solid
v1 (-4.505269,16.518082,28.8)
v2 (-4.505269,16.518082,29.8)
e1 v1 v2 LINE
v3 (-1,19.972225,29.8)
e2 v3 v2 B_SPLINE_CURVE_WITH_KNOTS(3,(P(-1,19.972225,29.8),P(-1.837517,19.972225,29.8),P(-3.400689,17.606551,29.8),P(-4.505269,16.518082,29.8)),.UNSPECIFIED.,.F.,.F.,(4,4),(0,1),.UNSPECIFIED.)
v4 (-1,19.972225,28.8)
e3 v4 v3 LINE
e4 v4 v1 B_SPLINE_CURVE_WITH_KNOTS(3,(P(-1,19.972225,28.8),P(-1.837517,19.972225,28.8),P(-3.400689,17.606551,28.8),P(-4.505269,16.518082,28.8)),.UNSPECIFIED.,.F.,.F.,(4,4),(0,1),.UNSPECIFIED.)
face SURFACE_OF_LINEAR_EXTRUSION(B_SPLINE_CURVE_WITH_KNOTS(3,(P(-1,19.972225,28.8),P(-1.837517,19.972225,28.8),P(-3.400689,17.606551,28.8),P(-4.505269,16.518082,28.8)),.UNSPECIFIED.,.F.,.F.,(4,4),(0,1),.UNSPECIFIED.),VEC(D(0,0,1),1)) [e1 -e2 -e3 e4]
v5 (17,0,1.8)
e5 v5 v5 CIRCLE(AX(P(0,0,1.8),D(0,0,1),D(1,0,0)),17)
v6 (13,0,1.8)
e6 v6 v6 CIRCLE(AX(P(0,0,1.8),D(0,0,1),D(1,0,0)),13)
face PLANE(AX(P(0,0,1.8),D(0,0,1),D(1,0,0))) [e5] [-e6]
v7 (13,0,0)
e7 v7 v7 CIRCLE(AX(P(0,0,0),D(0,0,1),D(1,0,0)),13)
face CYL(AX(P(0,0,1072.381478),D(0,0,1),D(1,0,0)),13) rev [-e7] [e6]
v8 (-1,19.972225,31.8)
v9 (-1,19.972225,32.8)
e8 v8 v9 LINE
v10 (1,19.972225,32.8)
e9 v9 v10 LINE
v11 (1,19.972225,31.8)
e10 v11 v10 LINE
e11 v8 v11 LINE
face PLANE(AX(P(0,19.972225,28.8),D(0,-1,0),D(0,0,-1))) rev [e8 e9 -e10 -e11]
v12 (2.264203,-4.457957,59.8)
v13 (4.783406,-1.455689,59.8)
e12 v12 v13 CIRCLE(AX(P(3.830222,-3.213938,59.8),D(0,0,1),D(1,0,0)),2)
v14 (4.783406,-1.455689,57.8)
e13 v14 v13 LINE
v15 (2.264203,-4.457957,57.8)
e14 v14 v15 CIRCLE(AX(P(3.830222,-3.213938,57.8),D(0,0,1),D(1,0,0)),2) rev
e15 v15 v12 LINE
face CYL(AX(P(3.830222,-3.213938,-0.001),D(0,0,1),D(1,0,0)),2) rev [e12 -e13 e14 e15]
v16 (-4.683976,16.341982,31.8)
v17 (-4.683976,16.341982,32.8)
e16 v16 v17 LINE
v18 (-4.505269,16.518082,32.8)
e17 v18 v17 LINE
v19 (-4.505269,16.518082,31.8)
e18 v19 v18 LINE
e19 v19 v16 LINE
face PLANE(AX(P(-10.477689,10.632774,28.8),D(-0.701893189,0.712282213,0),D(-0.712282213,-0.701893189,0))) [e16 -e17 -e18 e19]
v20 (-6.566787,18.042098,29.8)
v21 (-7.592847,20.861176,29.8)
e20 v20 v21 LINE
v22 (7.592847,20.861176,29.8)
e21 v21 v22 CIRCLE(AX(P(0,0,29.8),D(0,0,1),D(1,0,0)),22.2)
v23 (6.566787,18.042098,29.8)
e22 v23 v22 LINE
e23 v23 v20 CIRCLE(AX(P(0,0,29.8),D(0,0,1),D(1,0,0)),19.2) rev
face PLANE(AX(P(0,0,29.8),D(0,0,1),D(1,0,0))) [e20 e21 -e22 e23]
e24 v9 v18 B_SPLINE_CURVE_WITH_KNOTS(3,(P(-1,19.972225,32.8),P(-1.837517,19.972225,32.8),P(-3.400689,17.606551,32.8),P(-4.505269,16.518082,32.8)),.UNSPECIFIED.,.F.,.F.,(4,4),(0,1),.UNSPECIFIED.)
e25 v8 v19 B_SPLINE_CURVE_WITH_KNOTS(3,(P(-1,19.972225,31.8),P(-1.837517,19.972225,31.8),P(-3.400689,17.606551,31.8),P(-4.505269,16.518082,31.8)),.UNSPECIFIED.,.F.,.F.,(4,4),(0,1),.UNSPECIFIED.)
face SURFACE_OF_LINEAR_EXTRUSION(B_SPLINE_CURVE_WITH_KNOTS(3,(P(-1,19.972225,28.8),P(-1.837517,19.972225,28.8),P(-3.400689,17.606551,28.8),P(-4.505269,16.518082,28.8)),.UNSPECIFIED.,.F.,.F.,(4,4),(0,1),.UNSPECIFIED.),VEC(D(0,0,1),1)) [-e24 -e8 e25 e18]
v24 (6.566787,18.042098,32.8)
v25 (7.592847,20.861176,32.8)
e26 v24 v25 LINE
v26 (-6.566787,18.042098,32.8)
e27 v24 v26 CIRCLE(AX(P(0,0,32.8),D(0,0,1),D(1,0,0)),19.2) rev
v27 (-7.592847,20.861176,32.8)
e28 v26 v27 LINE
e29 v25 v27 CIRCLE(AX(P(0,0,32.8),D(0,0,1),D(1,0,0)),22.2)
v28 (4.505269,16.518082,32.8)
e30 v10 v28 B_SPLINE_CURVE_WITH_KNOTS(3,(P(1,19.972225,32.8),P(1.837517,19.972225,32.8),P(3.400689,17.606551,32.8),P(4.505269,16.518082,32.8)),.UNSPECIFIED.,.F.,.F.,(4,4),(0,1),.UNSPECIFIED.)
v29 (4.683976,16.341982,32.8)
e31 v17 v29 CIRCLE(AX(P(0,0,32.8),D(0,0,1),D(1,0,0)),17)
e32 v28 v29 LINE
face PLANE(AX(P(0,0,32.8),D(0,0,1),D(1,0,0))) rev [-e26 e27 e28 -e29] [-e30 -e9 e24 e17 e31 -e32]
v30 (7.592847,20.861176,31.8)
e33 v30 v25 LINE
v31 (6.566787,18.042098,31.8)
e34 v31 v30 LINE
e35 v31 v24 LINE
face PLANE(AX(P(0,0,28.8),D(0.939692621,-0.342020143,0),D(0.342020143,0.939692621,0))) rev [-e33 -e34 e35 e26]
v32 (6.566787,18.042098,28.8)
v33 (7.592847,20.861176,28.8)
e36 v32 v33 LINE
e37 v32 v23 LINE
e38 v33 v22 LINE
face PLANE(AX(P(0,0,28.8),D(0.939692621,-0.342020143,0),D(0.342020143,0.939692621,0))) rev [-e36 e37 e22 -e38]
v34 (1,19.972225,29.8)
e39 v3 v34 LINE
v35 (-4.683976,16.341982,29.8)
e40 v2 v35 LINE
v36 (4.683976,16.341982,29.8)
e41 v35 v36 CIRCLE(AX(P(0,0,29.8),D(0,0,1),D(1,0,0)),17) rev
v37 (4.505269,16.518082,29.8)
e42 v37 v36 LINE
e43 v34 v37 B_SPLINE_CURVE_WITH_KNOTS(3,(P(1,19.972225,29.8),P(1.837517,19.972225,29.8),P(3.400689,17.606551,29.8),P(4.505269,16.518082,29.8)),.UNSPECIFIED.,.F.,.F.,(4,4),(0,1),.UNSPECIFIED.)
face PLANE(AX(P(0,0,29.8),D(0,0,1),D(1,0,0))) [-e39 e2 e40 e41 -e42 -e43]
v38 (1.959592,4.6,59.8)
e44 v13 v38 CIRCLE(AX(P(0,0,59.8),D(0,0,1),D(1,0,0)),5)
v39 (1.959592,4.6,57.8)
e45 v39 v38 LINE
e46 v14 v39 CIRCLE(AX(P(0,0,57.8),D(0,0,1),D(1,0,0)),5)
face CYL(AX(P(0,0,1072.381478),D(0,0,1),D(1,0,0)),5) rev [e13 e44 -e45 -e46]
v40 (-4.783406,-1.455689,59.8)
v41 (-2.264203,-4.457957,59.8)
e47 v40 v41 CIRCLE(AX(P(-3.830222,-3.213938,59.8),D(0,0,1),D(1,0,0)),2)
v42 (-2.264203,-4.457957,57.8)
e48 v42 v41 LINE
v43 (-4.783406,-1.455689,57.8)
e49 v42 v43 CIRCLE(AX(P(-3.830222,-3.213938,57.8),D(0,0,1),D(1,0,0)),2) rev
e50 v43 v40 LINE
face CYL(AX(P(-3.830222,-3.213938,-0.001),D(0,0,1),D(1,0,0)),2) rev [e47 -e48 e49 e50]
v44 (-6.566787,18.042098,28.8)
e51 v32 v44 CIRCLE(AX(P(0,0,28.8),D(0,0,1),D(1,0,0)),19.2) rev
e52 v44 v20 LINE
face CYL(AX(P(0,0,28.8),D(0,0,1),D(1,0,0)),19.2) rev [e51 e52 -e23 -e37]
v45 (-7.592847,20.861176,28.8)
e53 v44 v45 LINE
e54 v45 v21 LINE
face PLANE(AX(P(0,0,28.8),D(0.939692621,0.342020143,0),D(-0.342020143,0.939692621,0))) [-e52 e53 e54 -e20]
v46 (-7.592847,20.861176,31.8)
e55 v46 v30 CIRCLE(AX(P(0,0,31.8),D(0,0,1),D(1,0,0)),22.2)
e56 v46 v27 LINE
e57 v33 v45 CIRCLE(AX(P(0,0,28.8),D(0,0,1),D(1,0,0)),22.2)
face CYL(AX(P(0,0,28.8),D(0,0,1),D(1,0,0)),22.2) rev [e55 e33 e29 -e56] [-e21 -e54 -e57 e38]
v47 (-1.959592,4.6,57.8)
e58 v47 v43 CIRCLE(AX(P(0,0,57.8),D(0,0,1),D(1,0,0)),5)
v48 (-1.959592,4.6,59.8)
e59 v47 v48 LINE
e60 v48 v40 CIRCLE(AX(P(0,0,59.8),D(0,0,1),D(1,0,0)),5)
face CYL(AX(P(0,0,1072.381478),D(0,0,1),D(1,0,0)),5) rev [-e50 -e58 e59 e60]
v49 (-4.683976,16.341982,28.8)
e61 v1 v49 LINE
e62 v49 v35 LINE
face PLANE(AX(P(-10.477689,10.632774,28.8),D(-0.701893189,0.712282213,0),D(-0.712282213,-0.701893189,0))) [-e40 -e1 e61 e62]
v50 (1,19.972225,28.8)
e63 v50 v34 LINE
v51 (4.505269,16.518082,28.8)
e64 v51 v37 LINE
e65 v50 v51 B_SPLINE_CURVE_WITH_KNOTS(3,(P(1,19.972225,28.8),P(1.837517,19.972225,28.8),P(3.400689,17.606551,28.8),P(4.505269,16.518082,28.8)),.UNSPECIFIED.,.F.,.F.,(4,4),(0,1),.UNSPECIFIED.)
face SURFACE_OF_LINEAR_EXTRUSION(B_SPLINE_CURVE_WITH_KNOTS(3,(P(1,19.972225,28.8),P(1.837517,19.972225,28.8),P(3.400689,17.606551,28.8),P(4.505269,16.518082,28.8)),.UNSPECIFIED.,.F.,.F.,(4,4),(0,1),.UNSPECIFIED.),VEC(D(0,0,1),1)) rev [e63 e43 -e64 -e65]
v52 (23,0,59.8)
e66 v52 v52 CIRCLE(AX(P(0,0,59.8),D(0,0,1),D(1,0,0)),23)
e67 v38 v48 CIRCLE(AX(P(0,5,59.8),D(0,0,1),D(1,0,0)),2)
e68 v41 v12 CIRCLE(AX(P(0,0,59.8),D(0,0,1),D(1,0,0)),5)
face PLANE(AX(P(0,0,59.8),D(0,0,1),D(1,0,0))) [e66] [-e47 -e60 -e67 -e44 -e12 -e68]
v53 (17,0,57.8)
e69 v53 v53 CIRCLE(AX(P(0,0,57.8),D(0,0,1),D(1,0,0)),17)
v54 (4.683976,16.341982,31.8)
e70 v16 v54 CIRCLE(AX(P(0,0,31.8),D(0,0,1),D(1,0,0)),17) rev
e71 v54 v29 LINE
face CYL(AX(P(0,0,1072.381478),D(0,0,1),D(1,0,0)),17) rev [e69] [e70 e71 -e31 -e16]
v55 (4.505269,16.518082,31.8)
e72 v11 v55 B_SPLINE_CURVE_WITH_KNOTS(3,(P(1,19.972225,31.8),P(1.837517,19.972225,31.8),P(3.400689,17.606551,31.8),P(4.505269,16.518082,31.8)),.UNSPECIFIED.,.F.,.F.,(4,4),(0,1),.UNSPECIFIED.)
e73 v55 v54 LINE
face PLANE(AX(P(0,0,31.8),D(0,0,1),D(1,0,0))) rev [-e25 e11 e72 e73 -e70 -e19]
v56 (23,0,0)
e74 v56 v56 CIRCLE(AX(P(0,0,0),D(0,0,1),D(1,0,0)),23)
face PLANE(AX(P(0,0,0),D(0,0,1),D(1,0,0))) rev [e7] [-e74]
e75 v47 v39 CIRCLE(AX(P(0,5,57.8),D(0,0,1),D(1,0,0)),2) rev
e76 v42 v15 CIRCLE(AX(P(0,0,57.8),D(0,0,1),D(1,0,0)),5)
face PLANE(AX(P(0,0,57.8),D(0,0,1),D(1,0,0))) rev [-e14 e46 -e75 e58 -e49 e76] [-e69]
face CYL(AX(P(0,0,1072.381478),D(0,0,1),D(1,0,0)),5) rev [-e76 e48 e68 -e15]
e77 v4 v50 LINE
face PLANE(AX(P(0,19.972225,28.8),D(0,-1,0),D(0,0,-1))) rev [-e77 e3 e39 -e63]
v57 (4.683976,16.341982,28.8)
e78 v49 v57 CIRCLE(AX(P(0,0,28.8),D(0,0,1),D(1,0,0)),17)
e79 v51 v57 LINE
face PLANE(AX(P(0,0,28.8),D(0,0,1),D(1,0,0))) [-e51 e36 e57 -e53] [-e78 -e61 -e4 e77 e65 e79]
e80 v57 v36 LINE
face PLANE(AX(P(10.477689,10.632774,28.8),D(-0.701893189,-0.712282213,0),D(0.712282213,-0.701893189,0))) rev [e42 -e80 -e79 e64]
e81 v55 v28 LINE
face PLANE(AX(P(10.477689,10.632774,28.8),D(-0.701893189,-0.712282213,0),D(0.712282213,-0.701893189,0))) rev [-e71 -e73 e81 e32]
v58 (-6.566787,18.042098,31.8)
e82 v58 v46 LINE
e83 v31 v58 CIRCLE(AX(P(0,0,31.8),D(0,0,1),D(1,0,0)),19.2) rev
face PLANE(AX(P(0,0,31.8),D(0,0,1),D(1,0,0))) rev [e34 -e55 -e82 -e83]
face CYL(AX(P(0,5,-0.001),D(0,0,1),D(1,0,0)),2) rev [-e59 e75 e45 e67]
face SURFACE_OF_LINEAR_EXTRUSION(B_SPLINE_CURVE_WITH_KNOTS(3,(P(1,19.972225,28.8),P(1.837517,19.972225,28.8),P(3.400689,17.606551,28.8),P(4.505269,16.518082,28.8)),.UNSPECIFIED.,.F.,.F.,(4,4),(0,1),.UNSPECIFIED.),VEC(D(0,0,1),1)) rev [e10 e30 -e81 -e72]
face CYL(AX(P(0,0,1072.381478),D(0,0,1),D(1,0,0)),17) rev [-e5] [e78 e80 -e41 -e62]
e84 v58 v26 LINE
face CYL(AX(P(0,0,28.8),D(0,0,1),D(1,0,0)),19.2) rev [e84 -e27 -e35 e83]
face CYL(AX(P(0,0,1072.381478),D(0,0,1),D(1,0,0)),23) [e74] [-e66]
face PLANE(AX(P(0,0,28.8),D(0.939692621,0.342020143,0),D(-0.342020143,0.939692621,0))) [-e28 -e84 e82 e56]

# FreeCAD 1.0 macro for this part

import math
import FreeCAD as App
import Part
import Sketcher
from FreeCAD import Vector
Q = App.Units.Quantity

doc = App.newDocument("Part")
body = doc.addObject("PartDesign::Body", "Body")

# Sketch on YZ plane
sketch1 = doc.addObject("Sketcher::SketchObject", "Sketch")
body.addObject(sketch1)
sketch1.AttachmentSupport = (doc.YZ_Plane, [""])
sketch1.MapMode = "FlatFace"
sketch1.addGeometry(Part.LineSegment(Vector(5, 59.8, 0), Vector(5, 57.8, 0)), False)
sketch1.addGeometry(Part.LineSegment(Vector(5, 57.8, 0), Vector(17, 57.8, 0)), False)
sketch1.addGeometry(Part.LineSegment(Vector(17, 57.8, 0), Vector(17, 1.8, 0)), False)
sketch1.addGeometry(Part.LineSegment(Vector(17, 1.8, 0), Vector(13, 1.8, 0)), False)
sketch1.addGeometry(Part.LineSegment(Vector(13, 1.8, 0), Vector(13, 0, 0)), False)
sketch1.addGeometry(Part.LineSegment(Vector(13, 0, 0), Vector(23, 0, 0)), False)
sketch1.addGeometry(Part.LineSegment(Vector(23, 0, 0), Vector(23, 59.8, 0)), False)
sketch1.addGeometry(Part.LineSegment(Vector(23, 59.8, 0), Vector(5, 59.8, 0)), False)
sketch1.addConstraint(Sketcher.Constraint("Coincident", 0, 2, 1, 1))
sketch1.addConstraint(Sketcher.Constraint("Coincident", 1, 2, 2, 1))
sketch1.addConstraint(Sketcher.Constraint("Coincident", 2, 2, 3, 1))
sketch1.addConstraint(Sketcher.Constraint("Coincident", 3, 2, 4, 1))
sketch1.addConstraint(Sketcher.Constraint("Coincident", 4, 2, 5, 1))
sketch1.addConstraint(Sketcher.Constraint("Coincident", 5, 2, 6, 1))
sketch1.addConstraint(Sketcher.Constraint("Coincident", 6, 2, 7, 1))
sketch1.addConstraint(Sketcher.Constraint("Coincident", 7, 2, 0, 1))
sketch1.addConstraint(Sketcher.Constraint("Vertical", 0))
sketch1.addConstraint(Sketcher.Constraint("Horizontal", 1))
sketch1.addConstraint(Sketcher.Constraint("Vertical", 2))
sketch1.addConstraint(Sketcher.Constraint("Horizontal", 3))
sketch1.addConstraint(Sketcher.Constraint("Vertical", 4))
sketch1.addConstraint(Sketcher.Constraint("Horizontal", 5))
sketch1.addConstraint(Sketcher.Constraint("Vertical", 6))
sketch1.addConstraint(Sketcher.Constraint("Horizontal", 7))
sketch1.addConstraint(Sketcher.Constraint("PointOnObject", 4, 2, -1))
sketch1.addConstraint(Sketcher.Constraint("DistanceX", 1, 1, 1, 2, Q("12 mm")))
sketch1.addConstraint(Sketcher.Constraint("DistanceX", 3, 2, 3, 1, Q("4 mm")))
sketch1.addConstraint(Sketcher.Constraint("DistanceX", 5, 1, 5, 2, Q("10 mm")))
sketch1.addConstraint(Sketcher.Constraint("DistanceY", 0, 2, 0, 1, Q("2 mm")))
sketch1.addConstraint(Sketcher.Constraint("DistanceY", 2, 2, 2, 1, Q("56 mm")))
sketch1.addConstraint(Sketcher.Constraint("DistanceY", 4, 2, 4, 1, Q("1.8 mm")))
sketch1.addConstraint(Sketcher.Constraint("DistanceX", -1, 1, 0, 2, Q("5 mm")))
revolution = doc.addObject("PartDesign::Revolution", "Revolution")
body.addObject(revolution)
revolution.Profile = sketch1
revolution.ReferenceAxis = (sketch1, ["V_Axis"])
revolution.Angle = 360

# Sketch on XY plane
sketch2 = doc.addObject("Sketcher::SketchObject", "Sketch001")
body.addObject(sketch2)
sketch2.AttachmentSupport = (doc.XY_Plane, [""])
sketch2.MapMode = "FlatFace"
sketch2.AttachmentOffset = App.Placement(Vector(0, 0, 30.8), App.Rotation())
sketch2.addGeometry(Part.ArcOfCircle(Part.Circle(Vector(0, 0, 0), Vector(0, 0, 1), 19.2), math.radians(110), math.radians(430)), False)
sketch2.addGeometry(Part.LineSegment(Vector(6.566787, 18.042098, 0), Vector(7.592847, 20.861176, 0)), False)
sketch2.addGeometry(Part.ArcOfCircle(Part.Circle(Vector(0, 0, 0), Vector(0, 0, 1), 22.2), math.radians(70), math.radians(110)), False)
sketch2.addGeometry(Part.LineSegment(Vector(-7.592847, 20.861176, 0), Vector(-6.566787, 18.042098, 0)), False)
sketch2.addGeometry(Part.BSplineCurve([Vector(-1, 19.972225, 0), Vector(-1.837517, 19.972225, 0), Vector(-3.400689, 17.606551, 0), Vector(-4.505269, 16.518082, 0)], [4, 4], [0, 1], False, 3, [1, 1, 1, 1], False), False)
sketch2.addGeometry(Part.LineSegment(Vector(-1, 19.972225, 0), Vector(1, 19.972225, 0)), False)
sketch2.addGeometry(Part.BSplineCurve([Vector(1, 19.972225, 0), Vector(1.837517, 19.972225, 0), Vector(3.400689, 17.606551, 0), Vector(4.505269, 16.518082, 0)], [4, 4], [0, 1], False, 3, [1, 1, 1, 1], False), False)
sketch2.addGeometry(Part.LineSegment(Vector(4.505269, 16.518082, 0), Vector(4.683976, 16.341982, 0)), False)
sketch2.addGeometry(Part.ArcOfCircle(Part.Circle(Vector(0, 0, 0), Vector(0, 0, 1), 17), math.radians(0), math.radians(74.006518)), False)
sketch2.addGeometry(Part.ArcOfCircle(Part.Circle(Vector(0, 0, 0), Vector(0, 0, 1), 17), math.radians(105.993482), math.radians(360)), False)
sketch2.addGeometry(Part.LineSegment(Vector(-4.683976, 16.341982, 0), Vector(-4.505269, 16.518082, 0)), False)
sketch2.addConstraint(Sketcher.Constraint("Block", 4))
sketch2.addConstraint(Sketcher.Constraint("Block", 6))
sketch2.addConstraint(Sketcher.Constraint("Coincident", 0, 2, 1, 1))
sketch2.addConstraint(Sketcher.Constraint("Coincident", 1, 2, 2, 1))
sketch2.addConstraint(Sketcher.Constraint("Coincident", 2, 2, 3, 1))
sketch2.addConstraint(Sketcher.Constraint("Coincident", 3, 2, 0, 1))
sketch2.addConstraint(Sketcher.Constraint("Coincident", 4, 1, 5, 1))
sketch2.addConstraint(Sketcher.Constraint("Coincident", 5, 2, 6, 1))
sketch2.addConstraint(Sketcher.Constraint("Coincident", 6, 2, 7, 1))
sketch2.addConstraint(Sketcher.Constraint("Coincident", 7, 2, 8, 2))
sketch2.addConstraint(Sketcher.Constraint("Tangent", 8, 1, 9, 2))
sketch2.addConstraint(Sketcher.Constraint("Coincident", 9, 1, 10, 1))
sketch2.addConstraint(Sketcher.Constraint("Coincident", 10, 2, 4, 2))
sketch2.addConstraint(Sketcher.Constraint("Coincident", 0, 3, -1, 1))
sketch2.addConstraint(Sketcher.Constraint("Coincident", 2, 3, -1, 1))
sketch2.addConstraint(Sketcher.Constraint("Coincident", 8, 3, -1, 1))
sketch2.addConstraint(Sketcher.Constraint("Equal", 8, 9))
sketch2.addConstraint(Sketcher.Constraint("PointOnObject", 8, 1, -1))
sketch2.addConstraint(Sketcher.Constraint("Horizontal", 1, 2, 2, 2))
sketch2.addConstraint(Sketcher.Constraint("Horizontal", 0, 2, 3, 2))
sketch2.addConstraint(Sketcher.Constraint("Horizontal", 7, 2, 9, 1))
sketch2.addConstraint(Sketcher.Constraint("Radius", 8, Q("17 mm")))
sketch2.addConstraint(Sketcher.Constraint("Radius", 0, Q("19.2 mm")))
sketch2.addConstraint(Sketcher.Constraint("Radius", 2, Q("22.2 mm")))
sketch2.addConstraint(Sketcher.Constraint("Angle", 1, Q("70 deg")))
sketch2.addConstraint(Sketcher.Constraint("DistanceY", -1, 1, 0, 2, Q("18.042098 mm")))
sketch2.addConstraint(Sketcher.Constraint("DistanceY", 9, 1, 10, 2, Q("0.176101 mm")))
pocket1 = doc.addObject("PartDesign::Pocket", "Pocket")
body.addObject(pocket1)
pocket1.Profile = sketch2
pocket1.Length = 4
pocket1.Midplane = True

# Sketch on XY plane
sketch3 = doc.addObject("Sketcher::SketchObject", "Sketch002")
body.addObject(sketch3)
sketch3.AttachmentSupport = (doc.XY_Plane, [""])
sketch3.MapMode = "FlatFace"
sketch3.AttachmentOffset = App.Placement(Vector(0, 0, 30.8), App.Rotation())
sketch3.addGeometry(Part.LineSegment(Vector(4.683976, 16.341982, 0), Vector(4.505269, 16.518082, 0)), False)
sketch3.addGeometry(Part.BSplineCurve([Vector(1, 19.972225, 0), Vector(1.837517, 19.972225, 0), Vector(3.400689, 17.606551, 0), Vector(4.505269, 16.518082, 0)], [4, 4], [0, 1], False, 3, [1, 1, 1, 1], False), False)
sketch3.addGeometry(Part.LineSegment(Vector(1, 19.972225, 0), Vector(-1, 19.972225, 0)), False)
sketch3.addGeometry(Part.BSplineCurve([Vector(-1, 19.972225, 0), Vector(-1.837517, 19.972225, 0), Vector(-3.400689, 17.606551, 0), Vector(-4.505269, 16.518082, 0)], [4, 4], [0, 1], False, 3, [1, 1, 1, 1], False), False)
sketch3.addGeometry(Part.LineSegment(Vector(-4.505269, 16.518082, 0), Vector(-4.683976, 16.341982, 0)), False)
sketch3.addGeometry(Part.ArcOfCircle(Part.Circle(Vector(0, 0, 0), Vector(0, 0, 1), 17), math.radians(105.993482), math.radians(434.006518)), False)
sketch3.addGeometry(Part.LineSegment(Vector(7.592847, 20.861176, 0), Vector(6.566787, 18.042098, 0)), False)
sketch3.addGeometry(Part.ArcOfCircle(Part.Circle(Vector(0, 0, 0), Vector(0, 0, 1), 19.2), math.radians(110), math.radians(430)), False)
sketch3.addGeometry(Part.LineSegment(Vector(-6.566787, 18.042098, 0), Vector(-7.592847, 20.861176, 0)), False)
sketch3.addGeometry(Part.ArcOfCircle(Part.Circle(Vector(0, 0, 0), Vector(0, 0, 1), 22.2), math.radians(110), math.radians(360)), False)
sketch3.addGeometry(Part.ArcOfCircle(Part.Circle(Vector(0, 0, 0), Vector(0, 0, 1), 22.2), math.radians(0), math.radians(70)), False)
sketch3.addConstraint(Sketcher.Constraint("Block", 1))
sketch3.addConstraint(Sketcher.Constraint("Block", 3))
sketch3.addConstraint(Sketcher.Constraint("Coincident", 0, 2, 1, 2))
sketch3.addConstraint(Sketcher.Constraint("Coincident", 1, 1, 2, 1))
sketch3.addConstraint(Sketcher.Constraint("Coincident", 2, 2, 3, 1))
sketch3.addConstraint(Sketcher.Constraint("Coincident", 3, 2, 4, 1))
sketch3.addConstraint(Sketcher.Constraint("Coincident", 4, 2, 5, 1))
sketch3.addConstraint(Sketcher.Constraint("Coincident", 5, 2, 0, 1))
sketch3.addConstraint(Sketcher.Constraint("Coincident", 6, 2, 7, 2))
sketch3.addConstraint(Sketcher.Constraint("Coincident", 7, 1, 8, 1))
sketch3.addConstraint(Sketcher.Constraint("Coincident", 8, 2, 9, 1))
sketch3.addConstraint(Sketcher.Constraint("Tangent", 9, 2, 10, 1))
sketch3.addConstraint(Sketcher.Constraint("Coincident", 10, 2, 6, 1))
sketch3.addConstraint(Sketcher.Constraint("Coincident", 5, 3, -1, 1))
sketch3.addConstraint(Sketcher.Constraint("Coincident", 7, 3, -1, 1))
sketch3.addConstraint(Sketcher.Constraint("Coincident", 9, 3, -1, 1))
sketch3.addConstraint(Sketcher.Constraint("Equal", 9, 10))
sketch3.addConstraint(Sketcher.Constraint("PointOnObject", 9, 2, -1))
sketch3.addConstraint(Sketcher.Constraint("Horizontal", 4, 2, 5, 2))
sketch3.addConstraint(Sketcher.Constraint("Horizontal", 6, 2, 7, 1))
sketch3.addConstraint(Sketcher.Constraint("Horizontal", 8, 2, 10, 2))
sketch3.addConstraint(Sketcher.Constraint("Radius", 5, Q("17 mm")))
sketch3.addConstraint(Sketcher.Constraint("Radius", 7, Q("19.2 mm")))
sketch3.addConstraint(Sketcher.Constraint("Radius", 9, Q("22.2 mm")))
sketch3.addConstraint(Sketcher.Constraint("Angle", 6, Q("-110 deg")))
sketch3.addConstraint(Sketcher.Constraint("DistanceY", -1, 1, 6, 2, Q("18.042098 mm")))
sketch3.addConstraint(Sketcher.Constraint("DistanceY", 4, 2, 0, 2, Q("0.176101 mm")))
pocket2 = doc.addObject("PartDesign::Pocket", "Pocket001")
body.addObject(pocket2)
pocket2.Profile = sketch3
pocket2.Length = 2
pocket2.Midplane = True

# Sketch on XY plane
sketch4 = doc.addObject("Sketcher::SketchObject", "Sketch003")
body.addObject(sketch4)
sketch4.AttachmentSupport = (doc.XY_Plane, [""])
sketch4.MapMode = "FlatFace"
sketch4.AttachmentOffset = App.Placement(Vector(0, 0, 57.8), App.Rotation())
sketch4.addGeometry(Part.ArcOfCircle(Part.Circle(Vector(0, 0, 0), Vector(0, 0, 1), 5), math.radians(-117), math.radians(-63)), False)
sketch4.addGeometry(Part.ArcOfCircle(Part.Circle(Vector(3.8, -3.2, 0), Vector(0, 0, 1), 2), math.radians(-142), math.radians(62)), False)
sketch4.addGeometry(Part.ArcOfCircle(Part.Circle(Vector(0, 0, 0), Vector(0, 0, 1), 5), math.radians(-17), math.radians(67)), False)
sketch4.addGeometry(Part.ArcOfCircle(Part.Circle(Vector(0, 5, 0), Vector(0, 0, 1), 2), math.radians(-12), math.radians(192)), False)
sketch4.addGeometry(Part.ArcOfCircle(Part.Circle(Vector(0, 0, 0), Vector(0, 0, 1), 5), math.radians(113), math.radians(197)), False)
sketch4.addGeometry(Part.ArcOfCircle(Part.Circle(Vector(-3.8, -3.2, 0), Vector(0, 0, 1), 2), math.radians(118), math.radians(322)), False)
sketch4.addConstraint(Sketcher.Constraint("Coincident", 0, 2, 1, 1))
sketch4.addConstraint(Sketcher.Constraint("Coincident", 1, 2, 2, 1))
sketch4.addConstraint(Sketcher.Constraint("Coincident", 2, 2, 3, 1))
sketch4.addConstraint(Sketcher.Constraint("Coincident", 3, 2, 4, 1))
sketch4.addConstraint(Sketcher.Constraint("Coincident", 4, 2, 5, 1))
sketch4.addConstraint(Sketcher.Constraint("Coincident", 5, 2, 0, 1))
sketch4.addConstraint(Sketcher.Constraint("Coincident", 0, 3, -1, 1))
sketch4.addConstraint(Sketcher.Constraint("Coincident", 2, 3, -1, 1))
sketch4.addConstraint(Sketcher.Constraint("Coincident", 4, 3, -1, 1))
sketch4.addConstraint(Sketcher.Constraint("Equal", 0, 2))
sketch4.addConstraint(Sketcher.Constraint("Equal", 1, 3))
sketch4.addConstraint(Sketcher.Constraint("Equal", 2, 4))
sketch4.addConstraint(Sketcher.Constraint("Equal", 3, 5))
sketch4.addConstraint(Sketcher.Constraint("Symmetric", 1, 3, 5, 3, -2))
sketch4.addConstraint(Sketcher.Constraint("PointOnObject", 3, 3, -2))
sketch4.addConstraint(Sketcher.Constraint("Radius", 0, Q("5 mm")))
sketch4.addConstraint(Sketcher.Constraint("Radius", 1, Q("2 mm")))
sketch4.addConstraint(Sketcher.Constraint("DistanceY", -1, 1, 3, 3, Q("5 mm")))
sketch4.addConstraint(Sketcher.Constraint("DistanceY", 1, 3, -1, 1, Q("3.213938 mm")))
sketch4.addConstraint(Sketcher.Constraint("DistanceY", 1, 2, -1, 1, Q("1.455689 mm")))
pocket3 = doc.addObject("PartDesign::Pocket", "Pocket002")
body.addObject(pocket3)
pocket3.Profile = sketch4
pocket3.Length = 2
pocket3.Reversed = True

doc.recompute()
